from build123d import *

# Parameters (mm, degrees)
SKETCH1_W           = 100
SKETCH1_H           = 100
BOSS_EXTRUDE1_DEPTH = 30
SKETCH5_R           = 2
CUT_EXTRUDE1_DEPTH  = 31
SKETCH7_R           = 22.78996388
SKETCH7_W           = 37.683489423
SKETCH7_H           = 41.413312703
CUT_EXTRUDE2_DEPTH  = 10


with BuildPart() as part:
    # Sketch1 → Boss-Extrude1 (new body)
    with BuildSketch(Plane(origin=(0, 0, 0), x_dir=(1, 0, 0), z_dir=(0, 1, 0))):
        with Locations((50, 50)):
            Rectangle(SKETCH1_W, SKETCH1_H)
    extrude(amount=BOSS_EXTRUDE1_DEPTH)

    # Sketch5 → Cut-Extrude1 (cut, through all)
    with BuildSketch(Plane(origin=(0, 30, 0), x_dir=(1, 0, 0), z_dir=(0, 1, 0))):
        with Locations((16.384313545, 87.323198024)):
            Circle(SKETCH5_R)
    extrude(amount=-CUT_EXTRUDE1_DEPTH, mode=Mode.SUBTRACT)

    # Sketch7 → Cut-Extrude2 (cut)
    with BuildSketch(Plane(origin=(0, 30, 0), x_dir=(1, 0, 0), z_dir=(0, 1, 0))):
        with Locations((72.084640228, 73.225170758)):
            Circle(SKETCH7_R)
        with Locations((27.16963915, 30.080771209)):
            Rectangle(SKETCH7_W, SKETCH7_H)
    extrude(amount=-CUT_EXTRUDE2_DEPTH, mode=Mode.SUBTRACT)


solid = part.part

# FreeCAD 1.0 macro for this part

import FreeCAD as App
import Part
import Sketcher
Q = App.Units.Quantity


def add_polygon(sketch, points):
    """Adds a closed chain of lines whose ends are joined by coincident constraints."""
    first, n = sketch.GeometryCount, len(points)
    for a, b in zip(points, points[1:] + points[:1]):
        sketch.addGeometry(Part.LineSegment(App.Vector(*a, 0), App.Vector(*b, 0)), False)
    for i in range(n):
        sketch.addConstraint(Sketcher.Constraint("Coincident", first + i, 2, first + (i + 1) % n, 1))

doc = App.newDocument("Part")
body = doc.addObject("PartDesign::Body", "Body")

# Sketch on XZ plane
sketch1 = doc.addObject("Sketcher::SketchObject", "Sketch")
body.addObject(sketch1)
sketch1.AttachmentSupport = (doc.XZ_Plane, [""])
sketch1.MapMode = "FlatFace"
add_polygon(sketch1, [(0, -100), (0, 0), (100, 0), (100, -100)])  # lines 0-3
sketch1.addConstraint(Sketcher.Constraint("Vertical", 0))
sketch1.addConstraint(Sketcher.Constraint("Horizontal", 1))
sketch1.addConstraint(Sketcher.Constraint("Vertical", 2))
sketch1.addConstraint(Sketcher.Constraint("Horizontal", 3))
sketch1.addConstraint(Sketcher.Constraint("Coincident", 0, 2, -1, 1))
sketch1.addConstraint(Sketcher.Constraint("Equal", 3, 0))
sketch1.addConstraint(Sketcher.Constraint("DistanceX", 1, 1, 1, 2, Q("100 mm")))
pad1 = doc.addObject("PartDesign::Pad", "Pad")
body.addObject(pad1)
pad1.Profile = sketch1
pad1.Length = 30
pad1.Reversed = True

# Sketch on XZ plane
sketch2 = doc.addObject("Sketcher::SketchObject", "Sketch001")
body.addObject(sketch2)
sketch2.AttachmentSupport = (doc.XZ_Plane, [""])
sketch2.MapMode = "FlatFace"
sketch2.AttachmentOffset = App.Placement(App.Vector(0, 0, -30), App.Rotation())
sketch2.addGeometry(Part.Circle(App.Vector(16.4, -87.3, 0), App.Vector(0, 0, 1), 2), False)
sketch2.addConstraint(Sketcher.Constraint("Diameter", 0, Q("4 mm")))
sketch2.addConstraint(Sketcher.Constraint("DistanceY", 0, 3, -1, 1, Q("87.323198 mm")))
sketch2.addConstraint(Sketcher.Constraint("DistanceX", -1, 1, 0, 3, Q("16.384314 mm")))
pocket1 = doc.addObject("PartDesign::Pocket", "Pocket")
body.addObject(pocket1)
pocket1.Profile = sketch2
pocket1.Type = "ThroughAll"
pocket1.Reversed = True

# Sketch on XZ plane
sketch3 = doc.addObject("Sketcher::SketchObject", "Sketch002")
body.addObject(sketch3)
sketch3.AttachmentSupport = (doc.XZ_Plane, [""])
sketch3.MapMode = "FlatFace"
sketch3.AttachmentOffset = App.Placement(App.Vector(0, 0, -30), App.Rotation())
sketch3.addGeometry(Part.Circle(App.Vector(72, -73, 0), App.Vector(0, 0, 1), 23), False)  # 0
add_polygon(sketch3, [(8, -51), (8, -9), (46, -9), (46, -51)])  # lines 1-4
sketch3.addConstraint(Sketcher.Constraint("Vertical", 1))
sketch3.addConstraint(Sketcher.Constraint("Horizontal", 2))
sketch3.addConstraint(Sketcher.Constraint("Vertical", 3))
sketch3.addConstraint(Sketcher.Constraint("Horizontal", 4))
sketch3.addConstraint(Sketcher.Constraint("Diameter", 0, Q("45.579928 mm")))
sketch3.addConstraint(Sketcher.Constraint("DistanceX", 2, 1, 2, 2, Q("37.683489 mm")))
sketch3.addConstraint(Sketcher.Constraint("DistanceY", 1, 1, 1, 2, Q("41.413313 mm")))
sketch3.addConstraint(Sketcher.Constraint("DistanceX", -1, 1, 0, 3, Q("72.08464 mm")))
sketch3.addConstraint(Sketcher.Constraint("DistanceY", 0, 3, -1, 1, Q("73.225171 mm")))
sketch3.addConstraint(Sketcher.Constraint("DistanceX", -1, 1, 1, 2, Q("8.327894 mm")))
sketch3.addConstraint(Sketcher.Constraint("DistanceY", 1, 2, -1, 1, Q("9.374115 mm")))
pocket2 = doc.addObject("PartDesign::Pocket", "Pocket001")
body.addObject(pocket2)
pocket2.Profile = sketch3
pocket2.Length = 10
pocket2.Reversed = True

doc.recompute()
